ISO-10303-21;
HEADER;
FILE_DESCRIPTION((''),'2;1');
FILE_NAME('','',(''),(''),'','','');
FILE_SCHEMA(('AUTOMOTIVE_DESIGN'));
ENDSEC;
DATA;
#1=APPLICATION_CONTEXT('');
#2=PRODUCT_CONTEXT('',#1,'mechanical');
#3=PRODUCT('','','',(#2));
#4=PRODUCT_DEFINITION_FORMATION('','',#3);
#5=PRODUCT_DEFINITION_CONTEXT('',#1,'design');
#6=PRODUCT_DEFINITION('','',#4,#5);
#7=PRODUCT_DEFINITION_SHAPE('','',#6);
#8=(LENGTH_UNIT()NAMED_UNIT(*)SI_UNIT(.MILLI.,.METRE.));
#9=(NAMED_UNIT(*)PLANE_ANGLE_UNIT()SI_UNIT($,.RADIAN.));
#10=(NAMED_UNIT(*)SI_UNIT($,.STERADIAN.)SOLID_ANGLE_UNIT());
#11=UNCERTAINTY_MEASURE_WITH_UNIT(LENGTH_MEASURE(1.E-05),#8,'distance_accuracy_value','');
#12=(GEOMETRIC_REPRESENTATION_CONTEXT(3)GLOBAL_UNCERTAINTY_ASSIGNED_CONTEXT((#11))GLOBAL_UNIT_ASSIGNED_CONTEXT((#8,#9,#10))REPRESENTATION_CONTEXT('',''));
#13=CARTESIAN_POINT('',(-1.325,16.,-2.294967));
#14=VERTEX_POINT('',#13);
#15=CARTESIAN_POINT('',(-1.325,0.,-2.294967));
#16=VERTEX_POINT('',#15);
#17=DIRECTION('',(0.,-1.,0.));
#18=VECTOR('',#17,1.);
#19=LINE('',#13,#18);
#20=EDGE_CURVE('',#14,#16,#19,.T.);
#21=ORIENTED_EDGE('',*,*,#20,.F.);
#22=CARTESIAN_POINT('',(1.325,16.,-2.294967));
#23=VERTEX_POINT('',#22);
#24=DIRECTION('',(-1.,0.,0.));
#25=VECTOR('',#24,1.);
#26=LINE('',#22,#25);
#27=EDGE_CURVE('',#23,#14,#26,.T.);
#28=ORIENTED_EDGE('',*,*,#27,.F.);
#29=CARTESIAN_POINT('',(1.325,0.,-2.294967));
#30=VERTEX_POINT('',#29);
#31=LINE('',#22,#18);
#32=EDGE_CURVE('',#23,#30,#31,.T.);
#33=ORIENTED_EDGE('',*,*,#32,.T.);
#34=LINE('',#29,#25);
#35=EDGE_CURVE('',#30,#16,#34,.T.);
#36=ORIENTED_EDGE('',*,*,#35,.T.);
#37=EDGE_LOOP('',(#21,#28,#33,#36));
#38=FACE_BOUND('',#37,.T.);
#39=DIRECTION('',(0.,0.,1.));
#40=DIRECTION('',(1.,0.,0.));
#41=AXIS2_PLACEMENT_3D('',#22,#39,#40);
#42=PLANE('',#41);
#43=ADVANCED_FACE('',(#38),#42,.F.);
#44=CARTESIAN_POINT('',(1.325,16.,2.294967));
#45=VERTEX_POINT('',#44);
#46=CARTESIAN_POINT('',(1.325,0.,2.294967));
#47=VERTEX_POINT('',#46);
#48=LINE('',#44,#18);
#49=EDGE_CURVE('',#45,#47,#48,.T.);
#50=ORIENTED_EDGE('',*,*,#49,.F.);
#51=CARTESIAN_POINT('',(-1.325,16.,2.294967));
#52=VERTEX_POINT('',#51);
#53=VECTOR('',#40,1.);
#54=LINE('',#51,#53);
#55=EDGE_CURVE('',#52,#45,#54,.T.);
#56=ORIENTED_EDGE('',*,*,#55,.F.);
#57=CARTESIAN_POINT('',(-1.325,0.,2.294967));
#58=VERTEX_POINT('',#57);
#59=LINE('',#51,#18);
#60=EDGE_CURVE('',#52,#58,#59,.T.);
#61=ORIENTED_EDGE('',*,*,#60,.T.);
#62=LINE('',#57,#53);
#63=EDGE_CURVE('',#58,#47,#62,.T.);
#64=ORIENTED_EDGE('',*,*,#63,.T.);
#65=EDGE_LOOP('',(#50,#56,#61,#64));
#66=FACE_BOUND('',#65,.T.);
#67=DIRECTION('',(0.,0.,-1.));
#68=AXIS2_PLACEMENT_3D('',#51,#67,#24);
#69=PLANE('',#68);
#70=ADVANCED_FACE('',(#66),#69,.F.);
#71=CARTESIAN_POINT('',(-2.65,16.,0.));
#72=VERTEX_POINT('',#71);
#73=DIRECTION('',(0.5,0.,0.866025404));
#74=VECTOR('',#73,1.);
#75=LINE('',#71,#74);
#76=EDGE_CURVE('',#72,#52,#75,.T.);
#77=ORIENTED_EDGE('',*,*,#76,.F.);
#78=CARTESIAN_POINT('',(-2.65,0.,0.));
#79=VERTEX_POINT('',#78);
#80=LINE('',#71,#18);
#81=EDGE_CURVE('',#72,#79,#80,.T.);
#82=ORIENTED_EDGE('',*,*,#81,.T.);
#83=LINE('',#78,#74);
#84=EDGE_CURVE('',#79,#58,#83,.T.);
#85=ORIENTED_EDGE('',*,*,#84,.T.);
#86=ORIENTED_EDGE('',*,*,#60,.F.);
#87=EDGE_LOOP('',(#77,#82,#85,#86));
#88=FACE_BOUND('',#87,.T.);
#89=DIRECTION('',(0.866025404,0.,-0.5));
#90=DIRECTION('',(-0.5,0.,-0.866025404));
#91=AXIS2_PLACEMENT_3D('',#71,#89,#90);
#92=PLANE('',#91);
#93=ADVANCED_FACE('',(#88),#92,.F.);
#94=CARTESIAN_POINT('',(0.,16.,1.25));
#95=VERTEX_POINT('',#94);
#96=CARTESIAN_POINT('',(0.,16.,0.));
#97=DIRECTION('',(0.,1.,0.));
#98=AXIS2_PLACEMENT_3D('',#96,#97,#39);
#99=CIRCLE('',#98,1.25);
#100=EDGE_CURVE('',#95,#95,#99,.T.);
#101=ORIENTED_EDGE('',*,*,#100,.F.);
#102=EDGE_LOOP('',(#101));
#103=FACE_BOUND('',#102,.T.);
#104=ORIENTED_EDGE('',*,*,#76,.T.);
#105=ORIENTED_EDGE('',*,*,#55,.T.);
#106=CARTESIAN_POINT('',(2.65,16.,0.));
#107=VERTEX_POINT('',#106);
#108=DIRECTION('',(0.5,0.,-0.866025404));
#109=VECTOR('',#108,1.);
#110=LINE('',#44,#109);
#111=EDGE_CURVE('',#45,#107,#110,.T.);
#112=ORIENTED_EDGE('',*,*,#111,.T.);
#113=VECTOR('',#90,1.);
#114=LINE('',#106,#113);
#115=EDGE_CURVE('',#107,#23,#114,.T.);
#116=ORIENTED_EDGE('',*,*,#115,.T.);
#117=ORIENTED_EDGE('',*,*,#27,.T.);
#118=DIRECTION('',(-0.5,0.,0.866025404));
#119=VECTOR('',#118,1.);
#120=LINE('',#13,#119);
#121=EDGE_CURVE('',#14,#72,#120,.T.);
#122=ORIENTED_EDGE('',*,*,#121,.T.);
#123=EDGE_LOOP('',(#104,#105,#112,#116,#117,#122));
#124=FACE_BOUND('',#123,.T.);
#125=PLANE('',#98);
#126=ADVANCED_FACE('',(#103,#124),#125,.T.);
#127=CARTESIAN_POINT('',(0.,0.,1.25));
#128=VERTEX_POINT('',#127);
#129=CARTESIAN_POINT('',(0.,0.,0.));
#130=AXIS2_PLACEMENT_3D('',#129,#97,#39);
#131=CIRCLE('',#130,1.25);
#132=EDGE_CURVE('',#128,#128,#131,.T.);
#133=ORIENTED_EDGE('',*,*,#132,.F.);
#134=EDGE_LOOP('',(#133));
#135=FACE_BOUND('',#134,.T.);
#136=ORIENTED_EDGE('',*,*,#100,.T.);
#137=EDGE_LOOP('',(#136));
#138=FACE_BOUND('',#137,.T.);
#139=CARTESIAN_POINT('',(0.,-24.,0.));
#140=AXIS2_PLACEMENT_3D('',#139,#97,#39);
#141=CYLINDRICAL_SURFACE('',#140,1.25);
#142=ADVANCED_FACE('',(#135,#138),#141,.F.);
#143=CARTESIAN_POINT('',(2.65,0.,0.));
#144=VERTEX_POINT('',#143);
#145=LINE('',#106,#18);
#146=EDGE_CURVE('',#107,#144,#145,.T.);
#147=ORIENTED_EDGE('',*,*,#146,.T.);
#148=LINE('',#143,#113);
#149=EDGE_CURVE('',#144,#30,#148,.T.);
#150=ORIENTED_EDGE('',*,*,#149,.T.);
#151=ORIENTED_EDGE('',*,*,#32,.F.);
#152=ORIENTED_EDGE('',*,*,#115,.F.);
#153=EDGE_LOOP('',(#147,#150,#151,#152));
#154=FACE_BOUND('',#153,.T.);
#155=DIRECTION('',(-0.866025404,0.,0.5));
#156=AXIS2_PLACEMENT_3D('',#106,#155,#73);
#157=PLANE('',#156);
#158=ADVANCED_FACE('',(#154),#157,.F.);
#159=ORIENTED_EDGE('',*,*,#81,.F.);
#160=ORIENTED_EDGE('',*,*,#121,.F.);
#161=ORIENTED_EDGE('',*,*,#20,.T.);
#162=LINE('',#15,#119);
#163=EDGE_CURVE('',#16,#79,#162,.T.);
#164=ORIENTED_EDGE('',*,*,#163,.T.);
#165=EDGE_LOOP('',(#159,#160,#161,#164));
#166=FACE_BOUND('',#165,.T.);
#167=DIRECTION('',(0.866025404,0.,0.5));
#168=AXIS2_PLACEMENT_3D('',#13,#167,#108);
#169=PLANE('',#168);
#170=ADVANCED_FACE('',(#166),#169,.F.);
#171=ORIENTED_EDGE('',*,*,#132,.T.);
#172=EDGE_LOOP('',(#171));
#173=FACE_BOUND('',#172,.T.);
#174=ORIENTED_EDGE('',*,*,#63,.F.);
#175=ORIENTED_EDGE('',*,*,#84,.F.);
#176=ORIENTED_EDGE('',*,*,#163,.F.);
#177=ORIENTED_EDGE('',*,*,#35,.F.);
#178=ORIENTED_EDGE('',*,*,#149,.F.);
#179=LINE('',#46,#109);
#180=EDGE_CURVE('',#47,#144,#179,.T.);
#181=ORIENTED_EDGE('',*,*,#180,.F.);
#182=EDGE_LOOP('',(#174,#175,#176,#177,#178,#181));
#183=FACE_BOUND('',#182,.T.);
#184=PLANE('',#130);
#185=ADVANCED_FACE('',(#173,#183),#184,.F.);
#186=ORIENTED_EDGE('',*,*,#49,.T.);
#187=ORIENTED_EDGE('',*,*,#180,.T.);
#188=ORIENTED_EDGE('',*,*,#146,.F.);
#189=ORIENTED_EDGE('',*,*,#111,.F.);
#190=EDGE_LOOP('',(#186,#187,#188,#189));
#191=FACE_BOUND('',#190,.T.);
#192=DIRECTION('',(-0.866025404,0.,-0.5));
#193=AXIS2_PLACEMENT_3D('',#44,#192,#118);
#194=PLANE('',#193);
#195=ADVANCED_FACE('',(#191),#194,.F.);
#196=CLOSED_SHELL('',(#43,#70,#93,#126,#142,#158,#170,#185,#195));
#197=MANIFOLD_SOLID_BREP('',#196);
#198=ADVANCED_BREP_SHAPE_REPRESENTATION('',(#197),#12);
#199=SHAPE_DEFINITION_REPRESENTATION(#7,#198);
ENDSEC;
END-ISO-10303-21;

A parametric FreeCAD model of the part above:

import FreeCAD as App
import Part
import Sketcher

V = App.Vector
Q = App.Units.Quantity

doc = App.newDocument("Part")
params = doc.addObject("Spreadsheet::Sheet", "Params")
for row, (alias, value) in enumerate([
    ("sketch1_width", "2.65 mm"),
    ("pad1_length", "16 mm"),
    ("sketch2_diameter", "2.5 mm"),
    ("pocket1_length", "40 mm"),
], start=1):
    params.set(f"A{row}", alias)
    params.set(f"B{row}", "=" + value)
    params.setAlias(f"B{row}", alias)

body = doc.addObject("PartDesign::Body", "Body")

# Sketch on XZ plane
sketch1 = body.newObject("Sketcher::SketchObject", "Sketch")
sketch1.AttachmentSupport = (doc.getObject("XZ_Plane"), [""])
sketch1.MapMode = "FlatFace"
sketch1.addGeometry(Part.LineSegment(V(1.325, 2.294967, 0), V(2.65, 0, 0)), False)
sketch1.addGeometry(Part.LineSegment(V(2.65, 0, 0), V(1.325, -2.294967, 0)), False)
sketch1.addGeometry(Part.LineSegment(V(1.325, -2.294967, 0), V(-1.325, -2.294967, 0)), False)
sketch1.addGeometry(Part.LineSegment(V(-1.325, -2.294967, 0), V(-2.65, 0, 0)), False)
sketch1.addGeometry(Part.LineSegment(V(-2.65, 0, 0), V(-1.325, 2.294967, 0)), False)
sketch1.addGeometry(Part.LineSegment(V(-1.325, 2.294967, 0), V(1.325, 2.294967, 0)), False)
sketch1.addConstraint(Sketcher.Constraint("Coincident", 0, 2, 1, 1))
sketch1.addConstraint(Sketcher.Constraint("Coincident", 1, 2, 2, 1))
sketch1.addConstraint(Sketcher.Constraint("Coincident", 2, 2, 3, 1))
sketch1.addConstraint(Sketcher.Constraint("Coincident", 3, 2, 4, 1))
sketch1.addConstraint(Sketcher.Constraint("Coincident", 4, 2, 5, 1))
sketch1.addConstraint(Sketcher.Constraint("Coincident", 5, 2, 0, 1))
sketch1.addConstraint(Sketcher.Constraint("Horizontal", 2))
sketch1.addConstraint(Sketcher.Constraint("Horizontal", 5))
sketch1.addConstraint(Sketcher.Constraint("Symmetric", 0, 2, 3, 2, -1, 1))
sketch1.addConstraint(Sketcher.Constraint("Symmetric", 1, 2, 4, 2, -1, 1))
sketch1.addConstraint(Sketcher.Constraint("PointOnObject", 0, 2, -1))
sketch1.addConstraint(Sketcher.Constraint("Parallel", 0, 3))
sketch1.addConstraint(Sketcher.Constraint("Vertical", 2, 2, 4, 2))
sketch1.addConstraint(Sketcher.Constraint("Angle", 0, Q("-60 deg")))
sketch1.addConstraint(Sketcher.Constraint("DistanceX", 2, 2, 2, 1, Q("2.65 mm")))
sketch1.addConstraint(Sketcher.Constraint("DistanceX", 3, 2, 0, 2, Q("5.3 mm")))
sketch1.setExpression("Constraints[14]", "Params.sketch1_width")
pad1 = body.newObject("PartDesign::Pad", "Pad")
pad1.Profile = sketch1
pad1.setExpression("Length", "Params.pad1_length")
pad1.Reversed = True

# Sketch on XZ plane
sketch2 = body.newObject("Sketcher::SketchObject", "Sketch001")
sketch2.AttachmentSupport = (doc.getObject("XZ_Plane"), [""])
sketch2.MapMode = "FlatFace"
sketch2.AttachmentOffset = App.Placement(V(0, 0, -16), App.Rotation())
sketch2.addGeometry(Part.Circle(V(0, 0, 0), V(0, 0, 1), 1.25), False)
sketch2.addConstraint(Sketcher.Constraint("Coincident", 0, 3, -1, 1))
sketch2.addConstraint(Sketcher.Constraint("Diameter", 0, Q("2.5 mm")))
sketch2.setExpression("Constraints[1]", "Params.sketch2_diameter")
pocket1 = body.newObject("PartDesign::Pocket", "Pocket")
pocket1.Profile = sketch2
pocket1.setExpression("Length", "Params.pocket1_length")
pocket1.Reversed = True

doc.recompute()
